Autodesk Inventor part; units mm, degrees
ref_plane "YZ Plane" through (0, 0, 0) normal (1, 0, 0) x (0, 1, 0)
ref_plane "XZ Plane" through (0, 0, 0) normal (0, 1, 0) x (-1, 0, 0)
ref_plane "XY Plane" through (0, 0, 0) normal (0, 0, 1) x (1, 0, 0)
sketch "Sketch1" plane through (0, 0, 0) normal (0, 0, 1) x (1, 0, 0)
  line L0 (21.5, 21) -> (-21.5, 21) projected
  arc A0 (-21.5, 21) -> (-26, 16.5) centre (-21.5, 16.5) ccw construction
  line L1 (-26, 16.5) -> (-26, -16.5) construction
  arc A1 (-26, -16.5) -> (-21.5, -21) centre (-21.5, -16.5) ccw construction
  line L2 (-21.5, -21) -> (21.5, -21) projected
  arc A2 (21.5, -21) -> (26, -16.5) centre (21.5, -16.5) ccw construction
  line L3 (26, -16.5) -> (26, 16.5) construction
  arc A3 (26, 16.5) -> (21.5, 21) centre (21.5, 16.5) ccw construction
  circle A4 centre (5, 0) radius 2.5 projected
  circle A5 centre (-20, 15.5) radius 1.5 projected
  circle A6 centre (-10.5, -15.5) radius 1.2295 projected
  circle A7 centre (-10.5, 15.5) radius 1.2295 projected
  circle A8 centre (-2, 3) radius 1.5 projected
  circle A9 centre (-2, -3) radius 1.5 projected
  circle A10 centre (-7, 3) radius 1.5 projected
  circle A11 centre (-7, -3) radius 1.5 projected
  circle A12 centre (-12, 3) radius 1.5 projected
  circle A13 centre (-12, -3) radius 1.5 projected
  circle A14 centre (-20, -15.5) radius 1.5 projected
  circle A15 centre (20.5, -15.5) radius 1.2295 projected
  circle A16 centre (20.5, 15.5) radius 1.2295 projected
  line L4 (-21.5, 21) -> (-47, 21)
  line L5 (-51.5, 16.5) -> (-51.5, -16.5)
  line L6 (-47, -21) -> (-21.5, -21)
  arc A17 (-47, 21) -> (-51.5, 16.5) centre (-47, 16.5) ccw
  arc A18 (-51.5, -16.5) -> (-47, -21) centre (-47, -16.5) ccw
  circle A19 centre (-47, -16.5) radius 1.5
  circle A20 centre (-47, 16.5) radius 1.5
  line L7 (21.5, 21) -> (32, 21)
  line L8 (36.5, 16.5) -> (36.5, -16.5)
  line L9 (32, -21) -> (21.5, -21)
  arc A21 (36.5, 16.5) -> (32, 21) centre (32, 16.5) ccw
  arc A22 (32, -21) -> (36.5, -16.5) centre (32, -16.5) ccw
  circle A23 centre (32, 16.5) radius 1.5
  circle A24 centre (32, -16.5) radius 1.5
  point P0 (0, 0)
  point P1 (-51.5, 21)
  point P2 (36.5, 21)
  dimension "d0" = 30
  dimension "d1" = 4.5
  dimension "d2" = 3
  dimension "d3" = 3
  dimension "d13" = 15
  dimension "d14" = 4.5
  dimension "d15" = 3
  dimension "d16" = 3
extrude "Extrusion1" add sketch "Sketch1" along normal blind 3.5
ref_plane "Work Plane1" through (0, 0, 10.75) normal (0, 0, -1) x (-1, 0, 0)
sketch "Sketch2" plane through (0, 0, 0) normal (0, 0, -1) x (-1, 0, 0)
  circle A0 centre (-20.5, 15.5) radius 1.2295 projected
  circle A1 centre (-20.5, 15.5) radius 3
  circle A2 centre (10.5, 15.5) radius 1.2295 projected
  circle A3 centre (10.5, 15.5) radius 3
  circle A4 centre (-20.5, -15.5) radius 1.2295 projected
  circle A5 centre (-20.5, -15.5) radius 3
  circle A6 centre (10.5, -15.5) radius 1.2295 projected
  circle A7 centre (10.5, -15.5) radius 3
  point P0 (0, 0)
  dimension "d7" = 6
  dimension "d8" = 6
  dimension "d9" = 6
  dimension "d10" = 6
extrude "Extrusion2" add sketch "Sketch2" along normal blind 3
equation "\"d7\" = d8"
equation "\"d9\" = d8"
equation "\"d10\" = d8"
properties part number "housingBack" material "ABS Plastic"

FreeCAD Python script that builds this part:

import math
import FreeCAD as App
import Part
import Sketcher

V = App.Vector

doc = App.newDocument("Part")
body = doc.addObject("PartDesign::Body", "Body")

# Sketch on XY plane
sketch1 = body.newObject("Sketcher::SketchObject", "Sketch")
sketch1.AttachmentSupport = (doc.getObject("XY_Plane"), [""])
sketch1.MapMode = "FlatFace"
sketch1.addGeometry(Part.LineSegment(V(32, 21, 0), V(-47, 21, 0)), False)
sketch1.addGeometry(Part.ArcOfCircle(Part.Circle(V(-47, 16.5, 0), V(0, 0, 1), 4.5), math.radians(90), math.radians(180)), False)
sketch1.addGeometry(Part.LineSegment(V(-51.5, 16.5, 0), V(-51.5, -16.5, 0)), False)
sketch1.addGeometry(Part.ArcOfCircle(Part.Circle(V(-47, -16.5, 0), V(0, 0, 1), 4.5), math.radians(180), math.radians(270)), False)
sketch1.addGeometry(Part.LineSegment(V(-47, -21, 0), V(32, -21, 0)), False)
sketch1.addGeometry(Part.ArcOfCircle(Part.Circle(V(32, -16.5, 0), V(0, 0, 1), 4.5), math.radians(-90), math.radians(0)), False)
sketch1.addGeometry(Part.LineSegment(V(36.5, -16.5, 0), V(36.5, 16.5, 0)), False)
sketch1.addGeometry(Part.ArcOfCircle(Part.Circle(V(32, 16.5, 0), V(0, 0, 1), 4.5), math.radians(0), math.radians(90)), False)
sketch1.addGeometry(Part.Circle(V(-47, -16.5, 0), V(0, 0, 1), 1.5), False)
sketch1.addGeometry(Part.Circle(V(-20, -15.5, 0), V(0, 0, 1), 1.5), False)
sketch1.addGeometry(Part.Circle(V(-10.5, -15.5, 0), V(0, 0, 1), 1.2), False)
sketch1.addGeometry(Part.Circle(V(-12, -3, 0), V(0, 0, 1), 1.5), False)
sketch1.addGeometry(Part.Circle(V(32, -16.5, 0), V(0, 0, 1), 1.5), False)
sketch1.addGeometry(Part.Circle(V(20.5, -15.5, 0), V(0, 0, 1), 1.2), False)
sketch1.addGeometry(Part.Circle(V(-7, -3, 0), V(0, 0, 1), 1.5), False)
sketch1.addGeometry(Part.Circle(V(-2, -3, 0), V(0, 0, 1), 1.5), False)
sketch1.addGeometry(Part.Circle(V(-12, 3, 0), V(0, 0, 1), 1.5), False)
sketch1.addGeometry(Part.Circle(V(-47, 16.5, 0), V(0, 0, 1), 1.5), False)
sketch1.addGeometry(Part.Circle(V(-20, 15.5, 0), V(0, 0, 1), 1.5), False)
sketch1.addGeometry(Part.Circle(V(-10.5, 15.5, 0), V(0, 0, 1), 1.2), False)
sketch1.addGeometry(Part.Circle(V(-7, 3, 0), V(0, 0, 1), 1.5), False)
sketch1.addGeometry(Part.Circle(V(-2, 3, 0), V(0, 0, 1), 1.5), False)
sketch1.addGeometry(Part.Circle(V(5, 0, 0), V(0, 0, 1), 2.5), False)
sketch1.addGeometry(Part.Circle(V(20.5, 15.5, 0), V(0, 0, 1), 1.2), False)
sketch1.addGeometry(Part.Circle(V(32, 16.5, 0), V(0, 0, 1), 1.5), False)
sketch1.addConstraint(Sketcher.Constraint("Tangent", 0, 2, 1, 1))
sketch1.addConstraint(Sketcher.Constraint("Tangent", 1, 2, 2, 1))
sketch1.addConstraint(Sketcher.Constraint("Tangent", 2, 2, 3, 1))
sketch1.addConstraint(Sketcher.Constraint("Tangent", 3, 2, 4, 1))
sketch1.addConstraint(Sketcher.Constraint("Tangent", 4, 2, 5, 1))
sketch1.addConstraint(Sketcher.Constraint("Tangent", 5, 2, 6, 1))
sketch1.addConstraint(Sketcher.Constraint("Tangent", 6, 2, 7, 1))
sketch1.addConstraint(Sketcher.Constraint("Tangent", 7, 2, 0, 1))
sketch1.addConstraint(Sketcher.Constraint("Horizontal", 0))
sketch1.addConstraint(Sketcher.Constraint("Vertical", 2))
sketch1.addConstraint(Sketcher.Constraint("Horizontal", 4))
sketch1.addConstraint(Sketcher.Constraint("Vertical", 6))
sketch1.addConstraint(Sketcher.Constraint("Coincident", 8, 3, 3, 3))
sketch1.addConstraint(Sketcher.Constraint("Coincident", 12, 3, 5, 3))
sketch1.addConstraint(Sketcher.Constraint("Coincident", 17, 3, 1, 3))
sketch1.addConstraint(Sketcher.Constraint("Coincident", 24, 3, 7, 3))
sketch1.addConstraint(Sketcher.Constraint("Equal", 1, 3))
sketch1.addConstraint(Sketcher.Constraint("Equal", 3, 5))
sketch1.addConstraint(Sketcher.Constraint("Equal", 5, 7))
sketch1.addConstraint(Sketcher.Constraint("Equal", 8, 9))
sketch1.addConstraint(Sketcher.Constraint("Equal", 9, 11))
sketch1.addConstraint(Sketcher.Constraint("Equal", 11, 12))
sketch1.addConstraint(Sketcher.Constraint("Equal", 10, 13))
sketch1.addConstraint(Sketcher.Constraint("Equal", 12, 14))
sketch1.addConstraint(Sketcher.Constraint("Equal", 14, 15))
sketch1.addConstraint(Sketcher.Constraint("Equal", 15, 16))
sketch1.addConstraint(Sketcher.Constraint("Equal", 16, 17))
sketch1.addConstraint(Sketcher.Constraint("Equal", 17, 18))
sketch1.addConstraint(Sketcher.Constraint("Equal", 13, 19))
sketch1.addConstraint(Sketcher.Constraint("Equal", 18, 20))
sketch1.addConstraint(Sketcher.Constraint("Equal", 20, 21))
sketch1.addConstraint(Sketcher.Constraint("Equal", 19, 23))
sketch1.addConstraint(Sketcher.Constraint("Equal", 21, 24))
sketch1.addConstraint(Sketcher.Constraint("Symmetric", 11, 3, 16, 3, -1))
sketch1.addConstraint(Sketcher.Constraint("Symmetric", 9, 3, 18, 3, -1))
sketch1.addConstraint(Sketcher.Constraint("Symmetric", 10, 3, 19, 3, -1))
sketch1.addConstraint(Sketcher.Constraint("Symmetric", 14, 3, 20, 3, -1))
sketch1.addConstraint(Sketcher.Constraint("Symmetric", 15, 3, 21, 3, -1))
sketch1.addConstraint(Sketcher.Constraint("Symmetric", 13, 3, 23, 3, -1))
sketch1.addConstraint(Sketcher.Constraint("PointOnObject", 22, 3, -1))
sketch1.addConstraint(Sketcher.Constraint("Horizontal", 9, 3, 10, 3))
sketch1.addConstraint(Sketcher.Constraint("Horizontal", 10, 3, 13, 3))
sketch1.addConstraint(Sketcher.Constraint("Horizontal", 11, 3, 14, 3))
sketch1.addConstraint(Sketcher.Constraint("Horizontal", 14, 3, 15, 3))
sketch1.addConstraint(Sketcher.Constraint("Diameter", 8, 3.0))
sketch1.addConstraint(Sketcher.Constraint("Radius", 1, 4.5))
sketch1.addConstraint(Sketcher.Constraint("Diameter", 22, 5.0))
sketch1.addConstraint(Sketcher.Constraint("DistanceY", 11, 3, -1, 1, 3.0))
sketch1.addConstraint(Sketcher.Constraint("DistanceX", 0, 2, 0, 1, 79.0))
sketch1.addConstraint(Sketcher.Constraint("DistanceY", 2, 2, 2, 1, 33.0))
sketch1.addConstraint(Sketcher.Constraint("Diameter", 10, 2.459))
sketch1.addConstraint(Sketcher.Constraint("DistanceX", 1, 3, -1, 1, 47.0))
sketch1.addConstraint(Sketcher.Constraint("DistanceX", 9, 3, -1, 1, 20.0))
sketch1.addConstraint(Sketcher.Constraint("DistanceX", 11, 3, -1, 1, 12.0))
sketch1.addConstraint(Sketcher.Constraint("DistanceX", 14, 3, -1, 1, 7.0))
sketch1.addConstraint(Sketcher.Constraint("DistanceX", 15, 3, -1, 1, 2.0))
sketch1.addConstraint(Sketcher.Constraint("DistanceX", -1, 1, 22, 3, 5.0))
sketch1.addConstraint(Sketcher.Constraint("DistanceY", -1, 1, 0, 2, 21.0))
sketch1.addConstraint(Sketcher.Constraint("DistanceY", 3, 3, 9, 3, 1.0))
sketch1.addConstraint(Sketcher.Constraint("DistanceX", 10, 3, 13, 3, 31.0))
sketch1.addConstraint(Sketcher.Constraint("DistanceX", 13, 3, 5, 2, 16.0))
pad1 = body.newObject("PartDesign::Pad", "Pad")
pad1.Profile = sketch1
pad1.Length = 3.5

# Sketch on XY plane
sketch2 = body.newObject("Sketcher::SketchObject", "Sketch001")
sketch2.AttachmentSupport = (doc.getObject("XY_Plane"), [""])
sketch2.MapMode = "FlatFace"
sketch2.addGeometry(Part.Circle(V(20.5, 15.5, 0), V(0, 0, 1), 3), False)
sketch2.addGeometry(Part.Circle(V(20.5, 15.5, 0), V(0, 0, 1), 1.2), False)
sketch2.addGeometry(Part.Circle(V(-10.5, 15.5, 0), V(0, 0, 1), 3), False)
sketch2.addGeometry(Part.Circle(V(-10.5, 15.5, 0), V(0, 0, 1), 1.2), False)
sketch2.addGeometry(Part.Circle(V(20.5, -15.5, 0), V(0, 0, 1), 3), False)
sketch2.addGeometry(Part.Circle(V(20.5, -15.5, 0), V(0, 0, 1), 1.2), False)
sketch2.addGeometry(Part.Circle(V(-10.5, -15.5, 0), V(0, 0, 1), 3), False)
sketch2.addGeometry(Part.Circle(V(-10.5, -15.5, 0), V(0, 0, 1), 1.2), False)
sketch2.addConstraint(Sketcher.Constraint("Coincident", 1, 3, 0, 3))
sketch2.addConstraint(Sketcher.Constraint("Coincident", 3, 3, 2, 3))
sketch2.addConstraint(Sketcher.Constraint("Coincident", 5, 3, 4, 3))
sketch2.addConstraint(Sketcher.Constraint("Coincident", 7, 3, 6, 3))
sketch2.addConstraint(Sketcher.Constraint("Equal", 0, 2))
sketch2.addConstraint(Sketcher.Constraint("Equal", 1, 3))
sketch2.addConstraint(Sketcher.Constraint("Equal", 2, 4))
sketch2.addConstraint(Sketcher.Constraint("Equal", 3, 5))
sketch2.addConstraint(Sketcher.Constraint("Equal", 4, 6))
sketch2.addConstraint(Sketcher.Constraint("Equal", 5, 7))
sketch2.addConstraint(Sketcher.Constraint("Symmetric", 0, 3, 4, 3, -1))
sketch2.addConstraint(Sketcher.Constraint("Symmetric", 2, 3, 6, 3, -1))
sketch2.addConstraint(Sketcher.Constraint("Horizontal", 1, 3, 2, 3))
sketch2.addConstraint(Sketcher.Constraint("Diameter", 0, 6.0))
sketch2.addConstraint(Sketcher.Constraint("Diameter", 1, 2.459))
sketch2.addConstraint(Sketcher.Constraint("DistanceX", 2, 3, 0, 3, 31.0))
sketch2.addConstraint(Sketcher.Constraint("DistanceY", 4, 3, 0, 3, 31.0))
sketch2.addConstraint(Sketcher.Constraint("DistanceX", -1, 1, 0, 3, 20.5))
pad2 = body.newObject("PartDesign::Pad", "Pad001")
pad2.Profile = sketch2
pad2.Length = 3
pad2.Reversed = True

doc.recompute()
